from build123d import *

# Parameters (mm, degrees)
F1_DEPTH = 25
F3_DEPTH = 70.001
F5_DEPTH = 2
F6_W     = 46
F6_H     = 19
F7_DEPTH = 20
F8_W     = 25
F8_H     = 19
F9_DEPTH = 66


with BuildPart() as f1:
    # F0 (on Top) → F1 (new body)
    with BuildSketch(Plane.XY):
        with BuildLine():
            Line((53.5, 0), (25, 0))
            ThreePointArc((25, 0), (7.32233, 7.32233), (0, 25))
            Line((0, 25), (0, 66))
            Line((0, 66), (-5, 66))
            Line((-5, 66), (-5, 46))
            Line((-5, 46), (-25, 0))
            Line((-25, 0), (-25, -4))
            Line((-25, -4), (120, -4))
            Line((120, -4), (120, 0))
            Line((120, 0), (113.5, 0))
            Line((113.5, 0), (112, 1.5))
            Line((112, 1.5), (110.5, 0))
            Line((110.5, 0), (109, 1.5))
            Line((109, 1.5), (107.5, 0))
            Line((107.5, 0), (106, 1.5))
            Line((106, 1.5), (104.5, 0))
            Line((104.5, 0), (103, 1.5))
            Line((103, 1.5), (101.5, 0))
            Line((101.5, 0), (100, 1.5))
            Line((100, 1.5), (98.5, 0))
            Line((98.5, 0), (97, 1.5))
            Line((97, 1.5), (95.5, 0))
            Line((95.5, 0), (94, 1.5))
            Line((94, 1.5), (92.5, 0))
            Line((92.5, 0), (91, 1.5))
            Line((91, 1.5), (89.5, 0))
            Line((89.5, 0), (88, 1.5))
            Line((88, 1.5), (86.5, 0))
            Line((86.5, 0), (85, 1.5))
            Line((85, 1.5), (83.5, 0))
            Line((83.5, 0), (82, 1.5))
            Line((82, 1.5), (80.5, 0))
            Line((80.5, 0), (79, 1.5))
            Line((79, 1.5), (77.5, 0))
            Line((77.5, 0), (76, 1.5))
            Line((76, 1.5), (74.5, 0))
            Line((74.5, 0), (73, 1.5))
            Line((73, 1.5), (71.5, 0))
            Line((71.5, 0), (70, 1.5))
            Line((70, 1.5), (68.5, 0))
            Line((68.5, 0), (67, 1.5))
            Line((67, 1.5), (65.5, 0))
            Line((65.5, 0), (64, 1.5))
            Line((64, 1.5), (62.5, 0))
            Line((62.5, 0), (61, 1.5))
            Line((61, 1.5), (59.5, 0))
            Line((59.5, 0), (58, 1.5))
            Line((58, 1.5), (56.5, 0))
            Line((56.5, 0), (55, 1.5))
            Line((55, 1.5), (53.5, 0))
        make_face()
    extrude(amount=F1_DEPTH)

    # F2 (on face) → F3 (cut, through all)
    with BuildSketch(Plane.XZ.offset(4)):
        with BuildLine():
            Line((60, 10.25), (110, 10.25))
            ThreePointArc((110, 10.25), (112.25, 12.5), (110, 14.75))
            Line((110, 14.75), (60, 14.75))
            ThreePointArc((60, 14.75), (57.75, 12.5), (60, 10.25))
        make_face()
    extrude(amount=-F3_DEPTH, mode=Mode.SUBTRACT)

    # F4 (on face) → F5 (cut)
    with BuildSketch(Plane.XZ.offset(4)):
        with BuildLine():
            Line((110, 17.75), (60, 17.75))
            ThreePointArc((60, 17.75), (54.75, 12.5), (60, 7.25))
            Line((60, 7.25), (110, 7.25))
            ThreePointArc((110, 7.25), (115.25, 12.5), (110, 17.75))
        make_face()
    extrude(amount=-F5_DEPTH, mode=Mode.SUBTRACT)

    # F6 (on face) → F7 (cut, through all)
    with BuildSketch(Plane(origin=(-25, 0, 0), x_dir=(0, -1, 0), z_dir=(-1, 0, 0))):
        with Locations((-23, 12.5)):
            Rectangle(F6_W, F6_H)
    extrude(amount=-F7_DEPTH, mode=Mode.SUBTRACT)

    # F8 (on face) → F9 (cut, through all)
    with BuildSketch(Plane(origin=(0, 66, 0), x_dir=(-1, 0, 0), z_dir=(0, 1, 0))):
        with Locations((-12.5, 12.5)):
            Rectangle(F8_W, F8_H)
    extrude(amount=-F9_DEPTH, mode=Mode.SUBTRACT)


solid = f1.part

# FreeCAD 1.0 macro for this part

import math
import FreeCAD as App
import Part
import Sketcher
Q = App.Units.Quantity

doc = App.newDocument("Part")
body = doc.addObject("PartDesign::Body", "Body")

# Sketch on XY plane
sketch1 = body.newObject("Sketcher::SketchObject", "Sketch")
sketch1.AttachmentSupport = (doc.getObject("XY_Plane"), [""])
sketch1.MapMode = "FlatFace"
sketch1.addGeometry(Part.LineSegment(App.Vector(53.5, 0, 0), App.Vector(25, 0, 0)), False)
sketch1.addGeometry(Part.ArcOfCircle(Part.Circle(App.Vector(25, 25, 0), App.Vector(0, 0, 1), 25), math.radians(180), math.radians(270)), False)
sketch1.addGeometry(Part.LineSegment(App.Vector(0, 25, 0), App.Vector(0, 66, 0)), False)
sketch1.addGeometry(Part.LineSegment(App.Vector(0, 66, 0), App.Vector(-5, 66, 0)), False)
sketch1.addGeometry(Part.LineSegment(App.Vector(-5, 66, 0), App.Vector(-5, 46, 0)), False)
sketch1.addGeometry(Part.LineSegment(App.Vector(-5, 46, 0), App.Vector(-25, 0, 0)), False)
sketch1.addGeometry(Part.LineSegment(App.Vector(-25, 0, 0), App.Vector(-25, -4, 0)), False)
sketch1.addGeometry(Part.LineSegment(App.Vector(-25, -4, 0), App.Vector(120, -4, 0)), False)
sketch1.addGeometry(Part.LineSegment(App.Vector(120, -4, 0), App.Vector(120, 0, 0)), False)
sketch1.addGeometry(Part.LineSegment(App.Vector(120, 0, 0), App.Vector(113.5, 0, 0)), False)
sketch1.addGeometry(Part.LineSegment(App.Vector(113.5, 0, 0), App.Vector(112, 1.5, 0)), False)
sketch1.addGeometry(Part.LineSegment(App.Vector(112, 1.5, 0), App.Vector(110.5, 0, 0)), False)
sketch1.addGeometry(Part.LineSegment(App.Vector(110.5, 0, 0), App.Vector(109, 1.5, 0)), False)
sketch1.addGeometry(Part.LineSegment(App.Vector(109, 1.5, 0), App.Vector(107.5, 0, 0)), False)
sketch1.addGeometry(Part.LineSegment(App.Vector(107.5, 0, 0), App.Vector(106, 1.5, 0)), False)
sketch1.addGeometry(Part.LineSegment(App.Vector(106, 1.5, 0), App.Vector(104.5, 0, 0)), False)
sketch1.addGeometry(Part.LineSegment(App.Vector(104.5, 0, 0), App.Vector(103, 1.5, 0)), False)
sketch1.addGeometry(Part.LineSegment(App.Vector(103, 1.5, 0), App.Vector(101.5, 0, 0)), False)
sketch1.addGeometry(Part.LineSegment(App.Vector(101.5, 0, 0), App.Vector(100, 1.5, 0)), False)
sketch1.addGeometry(Part.LineSegment(App.Vector(100, 1.5, 0), App.Vector(98.5, 0, 0)), False)
sketch1.addGeometry(Part.LineSegment(App.Vector(98.5, 0, 0), App.Vector(97, 1.5, 0)), False)
sketch1.addGeometry(Part.LineSegment(App.Vector(97, 1.5, 0), App.Vector(95.5, 0, 0)), False)
sketch1.addGeometry(Part.LineSegment(App.Vector(95.5, 0, 0), App.Vector(94, 1.5, 0)), False)
sketch1.addGeometry(Part.LineSegment(App.Vector(94, 1.5, 0), App.Vector(92.5, 0, 0)), False)
sketch1.addGeometry(Part.LineSegment(App.Vector(92.5, 0, 0), App.Vector(91, 1.5, 0)), False)
sketch1.addGeometry(Part.LineSegment(App.Vector(91, 1.5, 0), App.Vector(89.5, 0, 0)), False)
sketch1.addGeometry(Part.LineSegment(App.Vector(89.5, 0, 0), App.Vector(88, 1.5, 0)), False)
sketch1.addGeometry(Part.LineSegment(App.Vector(88, 1.5, 0), App.Vector(86.5, 0, 0)), False)
sketch1.addGeometry(Part.LineSegment(App.Vector(86.5, 0, 0), App.Vector(85, 1.5, 0)), False)
sketch1.addGeometry(Part.LineSegment(App.Vector(85, 1.5, 0), App.Vector(83.5, 0, 0)), False)
sketch1.addGeometry(Part.LineSegment(App.Vector(83.5, 0, 0), App.Vector(82, 1.5, 0)), False)
sketch1.addGeometry(Part.LineSegment(App.Vector(82, 1.5, 0), App.Vector(80.5, 0, 0)), False)
sketch1.addGeometry(Part.LineSegment(App.Vector(80.5, 0, 0), App.Vector(79, 1.5, 0)), False)
sketch1.addGeometry(Part.LineSegment(App.Vector(79, 1.5, 0), App.Vector(77.5, 0, 0)), False)
sketch1.addGeometry(Part.LineSegment(App.Vector(77.5, 0, 0), App.Vector(76, 1.5, 0)), False)
sketch1.addGeometry(Part.LineSegment(App.Vector(76, 1.5, 0), App.Vector(74.5, 0, 0)), False)
sketch1.addGeometry(Part.LineSegment(App.Vector(74.5, 0, 0), App.Vector(73, 1.5, 0)), False)
sketch1.addGeometry(Part.LineSegment(App.Vector(73, 1.5, 0), App.Vector(71.5, 0, 0)), False)
sketch1.addGeometry(Part.LineSegment(App.Vector(71.5, 0, 0), App.Vector(70, 1.5, 0)), False)
sketch1.addGeometry(Part.LineSegment(App.Vector(70, 1.5, 0), App.Vector(68.5, 0, 0)), False)
sketch1.addGeometry(Part.LineSegment(App.Vector(68.5, 0, 0), App.Vector(67, 1.5, 0)), False)
sketch1.addGeometry(Part.LineSegment(App.Vector(67, 1.5, 0), App.Vector(65.5, 0, 0)), False)
sketch1.addGeometry(Part.LineSegment(App.Vector(65.5, 0, 0), App.Vector(64, 1.5, 0)), False)
sketch1.addGeometry(Part.LineSegment(App.Vector(64, 1.5, 0), App.Vector(62.5, 0, 0)), False)
sketch1.addGeometry(Part.LineSegment(App.Vector(62.5, 0, 0), App.Vector(61, 1.5, 0)), False)
sketch1.addGeometry(Part.LineSegment(App.Vector(61, 1.5, 0), App.Vector(59.5, 0, 0)), False)
sketch1.addGeometry(Part.LineSegment(App.Vector(59.5, 0, 0), App.Vector(58, 1.5, 0)), False)
sketch1.addGeometry(Part.LineSegment(App.Vector(58, 1.5, 0), App.Vector(56.5, 0, 0)), False)
sketch1.addGeometry(Part.LineSegment(App.Vector(56.5, 0, 0), App.Vector(55, 1.5, 0)), False)
sketch1.addGeometry(Part.LineSegment(App.Vector(55, 1.5, 0), App.Vector(53.5, 0, 0)), False)
sketch1.addConstraint(Sketcher.Constraint("Tangent", 0, 2, 1, 2))
sketch1.addConstraint(Sketcher.Constraint("Tangent", 1, 1, 2, 1))
sketch1.addConstraint(Sketcher.Constraint("Coincident", 2, 2, 3, 1))
sketch1.addConstraint(Sketcher.Constraint("Coincident", 3, 2, 4, 1))
sketch1.addConstraint(Sketcher.Constraint("Coincident", 4, 2, 5, 1))
sketch1.addConstraint(Sketcher.Constraint("Coincident", 5, 2, 6, 1))
sketch1.addConstraint(Sketcher.Constraint("Coincident", 6, 2, 7, 1))
sketch1.addConstraint(Sketcher.Constraint("Coincident", 7, 2, 8, 1))
sketch1.addConstraint(Sketcher.Constraint("Coincident", 8, 2, 9, 1))
sketch1.addConstraint(Sketcher.Constraint("Coincident", 9, 2, 10, 1))
sketch1.addConstraint(Sketcher.Constraint("Coincident", 10, 2, 11, 1))
sketch1.addConstraint(Sketcher.Constraint("Coincident", 11, 2, 12, 1))
sketch1.addConstraint(Sketcher.Constraint("Coincident", 12, 2, 13, 1))
sketch1.addConstraint(Sketcher.Constraint("Coincident", 13, 2, 14, 1))
sketch1.addConstraint(Sketcher.Constraint("Coincident", 14, 2, 15, 1))
sketch1.addConstraint(Sketcher.Constraint("Coincident", 15, 2, 16, 1))
sketch1.addConstraint(Sketcher.Constraint("Coincident", 16, 2, 17, 1))
sketch1.addConstraint(Sketcher.Constraint("Coincident", 17, 2, 18, 1))
sketch1.addConstraint(Sketcher.Constraint("Coincident", 18, 2, 19, 1))
sketch1.addConstraint(Sketcher.Constraint("Coincident", 19, 2, 20, 1))
sketch1.addConstraint(Sketcher.Constraint("Coincident", 20, 2, 21, 1))
sketch1.addConstraint(Sketcher.Constraint("Coincident", 21, 2, 22, 1))
sketch1.addConstraint(Sketcher.Constraint("Coincident", 22, 2, 23, 1))
sketch1.addConstraint(Sketcher.Constraint("Coincident", 23, 2, 24, 1))
sketch1.addConstraint(Sketcher.Constraint("Coincident", 24, 2, 25, 1))
sketch1.addConstraint(Sketcher.Constraint("Coincident", 25, 2, 26, 1))
sketch1.addConstraint(Sketcher.Constraint("Coincident", 26, 2, 27, 1))
sketch1.addConstraint(Sketcher.Constraint("Coincident", 27, 2, 28, 1))
sketch1.addConstraint(Sketcher.Constraint("Coincident", 28, 2, 29, 1))
sketch1.addConstraint(Sketcher.Constraint("Coincident", 29, 2, 30, 1))
sketch1.addConstraint(Sketcher.Constraint("Coincident", 30, 2, 31, 1))
sketch1.addConstraint(Sketcher.Constraint("Coincident", 31, 2, 32, 1))
sketch1.addConstraint(Sketcher.Constraint("Coincident", 32, 2, 33, 1))
sketch1.addConstraint(Sketcher.Constraint("Coincident", 33, 2, 34, 1))
sketch1.addConstraint(Sketcher.Constraint("Coincident", 34, 2, 35, 1))
sketch1.addConstraint(Sketcher.Constraint("Coincident", 35, 2, 36, 1))
sketch1.addConstraint(Sketcher.Constraint("Coincident", 36, 2, 37, 1))
sketch1.addConstraint(Sketcher.Constraint("Coincident", 37, 2, 38, 1))
sketch1.addConstraint(Sketcher.Constraint("Coincident", 38, 2, 39, 1))
sketch1.addConstraint(Sketcher.Constraint("Coincident", 39, 2, 40, 1))
sketch1.addConstraint(Sketcher.Constraint("Coincident", 40, 2, 41, 1))
sketch1.addConstraint(Sketcher.Constraint("Coincident", 41, 2, 42, 1))
sketch1.addConstraint(Sketcher.Constraint("Coincident", 42, 2, 43, 1))
sketch1.addConstraint(Sketcher.Constraint("Coincident", 43, 2, 44, 1))
sketch1.addConstraint(Sketcher.Constraint("Coincident", 44, 2, 45, 1))
sketch1.addConstraint(Sketcher.Constraint("Coincident", 45, 2, 46, 1))
sketch1.addConstraint(Sketcher.Constraint("Coincident", 46, 2, 47, 1))
sketch1.addConstraint(Sketcher.Constraint("Coincident", 47, 2, 48, 1))
sketch1.addConstraint(Sketcher.Constraint("Coincident", 48, 2, 49, 1))
sketch1.addConstraint(Sketcher.Constraint("Coincident", 49, 2, 0, 1))
sketch1.addConstraint(Sketcher.Constraint("Horizontal", 0))
sketch1.addConstraint(Sketcher.Constraint("Vertical", 2))
sketch1.addConstraint(Sketcher.Constraint("Horizontal", 3))
sketch1.addConstraint(Sketcher.Constraint("Vertical", 4))
sketch1.addConstraint(Sketcher.Constraint("Vertical", 6))
sketch1.addConstraint(Sketcher.Constraint("Horizontal", 7))
sketch1.addConstraint(Sketcher.Constraint("Vertical", 8))
sketch1.addConstraint(Sketcher.Constraint("Horizontal", 9))
sketch1.addConstraint(Sketcher.Constraint("Symmetric", 0, 2, 5, 2, -1, 1))
sketch1.addConstraint(Sketcher.Constraint("PointOnObject", 0, 2, -1))
sketch1.addConstraint(Sketcher.Constraint("PointOnObject", 1, 1, -2))
sketch1.addConstraint(Sketcher.Constraint("PointOnObject", 8, 2, -1))
sketch1.addConstraint(Sketcher.Constraint("PointOnObject", 11, 2, -1))
sketch1.addConstraint(Sketcher.Constraint("PointOnObject", 13, 2, -1))
sketch1.addConstraint(Sketcher.Constraint("PointOnObject", 15, 2, -1))
sketch1.addConstraint(Sketcher.Constraint("PointOnObject", 17, 2, -1))
sketch1.addConstraint(Sketcher.Constraint("PointOnObject", 19, 2, -1))
sketch1.addConstraint(Sketcher.Constraint("PointOnObject", 21, 2, -1))
sketch1.addConstraint(Sketcher.Constraint("PointOnObject", 23, 2, -1))
sketch1.addConstraint(Sketcher.Constraint("PointOnObject", 25, 2, -1))
sketch1.addConstraint(Sketcher.Constraint("PointOnObject", 27, 2, -1))
sketch1.addConstraint(Sketcher.Constraint("PointOnObject", 29, 2, -1))
sketch1.addConstraint(Sketcher.Constraint("PointOnObject", 31, 2, -1))
sketch1.addConstraint(Sketcher.Constraint("PointOnObject", 33, 2, -1))
sketch1.addConstraint(Sketcher.Constraint("PointOnObject", 35, 2, -1))
sketch1.addConstraint(Sketcher.Constraint("PointOnObject", 37, 2, -1))
sketch1.addConstraint(Sketcher.Constraint("PointOnObject", 39, 2, -1))
sketch1.addConstraint(Sketcher.Constraint("PointOnObject", 41, 2, -1))
sketch1.addConstraint(Sketcher.Constraint("PointOnObject", 43, 2, -1))
sketch1.addConstraint(Sketcher.Constraint("PointOnObject", 45, 2, -1))
sketch1.addConstraint(Sketcher.Constraint("PointOnObject", 47, 2, -1))
sketch1.addConstraint(Sketcher.Constraint("Perpendicular", 10, 11))
sketch1.addConstraint(Sketcher.Constraint("Perpendicular", 11, 12))
sketch1.addConstraint(Sketcher.Constraint("Perpendicular", 12, 13))
sketch1.addConstraint(Sketcher.Constraint("Perpendicular", 13, 14))
sketch1.addConstraint(Sketcher.Constraint("Perpendicular", 14, 15))
sketch1.addConstraint(Sketcher.Constraint("Perpendicular", 15, 16))
sketch1.addConstraint(Sketcher.Constraint("Perpendicular", 16, 17))
sketch1.addConstraint(Sketcher.Constraint("Perpendicular", 17, 18))
sketch1.addConstraint(Sketcher.Constraint("Perpendicular", 18, 19))
sketch1.addConstraint(Sketcher.Constraint("Perpendicular", 19, 20))
sketch1.addConstraint(Sketcher.Constraint("Perpendicular", 20, 21))
sketch1.addConstraint(Sketcher.Constraint("Perpendicular", 21, 22))
sketch1.addConstraint(Sketcher.Constraint("Perpendicular", 22, 23))
sketch1.addConstraint(Sketcher.Constraint("Perpendicular", 23, 24))
sketch1.addConstraint(Sketcher.Constraint("Perpendicular", 24, 25))
sketch1.addConstraint(Sketcher.Constraint("Perpendicular", 25, 26))
sketch1.addConstraint(Sketcher.Constraint("Perpendicular", 26, 27))
sketch1.addConstraint(Sketcher.Constraint("Perpendicular", 27, 28))
sketch1.addConstraint(Sketcher.Constraint("Perpendicular", 28, 29))
sketch1.addConstraint(Sketcher.Constraint("Perpendicular", 29, 30))
sketch1.addConstraint(Sketcher.Constraint("Perpendicular", 30, 31))
sketch1.addConstraint(Sketcher.Constraint("Perpendicular", 31, 32))
sketch1.addConstraint(Sketcher.Constraint("Perpendicular", 32, 33))
sketch1.addConstraint(Sketcher.Constraint("Perpendicular", 33, 34))
sketch1.addConstraint(Sketcher.Constraint("Perpendicular", 34, 35))
sketch1.addConstraint(Sketcher.Constraint("Perpendicular", 35, 36))
sketch1.addConstraint(Sketcher.Constraint("Perpendicular", 36, 37))
sketch1.addConstraint(Sketcher.Constraint("Perpendicular", 37, 38))
sketch1.addConstraint(Sketcher.Constraint("Perpendicular", 38, 39))
sketch1.addConstraint(Sketcher.Constraint("Perpendicular", 39, 40))
sketch1.addConstraint(Sketcher.Constraint("Perpendicular", 40, 41))
sketch1.addConstraint(Sketcher.Constraint("Perpendicular", 41, 42))
sketch1.addConstraint(Sketcher.Constraint("Perpendicular", 42, 43))
sketch1.addConstraint(Sketcher.Constraint("Perpendicular", 43, 44))
sketch1.addConstraint(Sketcher.Constraint("Perpendicular", 44, 45))
sketch1.addConstraint(Sketcher.Constraint("Perpendicular", 45, 46))
sketch1.addConstraint(Sketcher.Constraint("Perpendicular", 46, 47))
sketch1.addConstraint(Sketcher.Constraint("Perpendicular", 47, 48))
sketch1.addConstraint(Sketcher.Constraint("Perpendicular", 48, 49))
sketch1.addConstraint(Sketcher.Constraint("Horizontal", 10, 2, 12, 2))
sketch1.addConstraint(Sketcher.Constraint("Horizontal", 12, 2, 14, 2))
sketch1.addConstraint(Sketcher.Constraint("Horizontal", 14, 2, 16, 2))
sketch1.addConstraint(Sketcher.Constraint("Horizontal", 16, 2, 18, 2))
sketch1.addConstraint(Sketcher.Constraint("Horizontal", 18, 2, 20, 2))
sketch1.addConstraint(Sketcher.Constraint("Horizontal", 20, 2, 22, 2))
sketch1.addConstraint(Sketcher.Constraint("Horizontal", 22, 2, 24, 2))
sketch1.addConstraint(Sketcher.Constraint("Horizontal", 24, 2, 26, 2))
sketch1.addConstraint(Sketcher.Constraint("Horizontal", 26, 2, 28, 2))
sketch1.addConstraint(Sketcher.Constraint("Horizontal", 28, 2, 30, 2))
sketch1.addConstraint(Sketcher.Constraint("Horizontal", 30, 2, 32, 2))
sketch1.addConstraint(Sketcher.Constraint("Horizontal", 32, 2, 34, 2))
sketch1.addConstraint(Sketcher.Constraint("Horizontal", 34, 2, 36, 2))
sketch1.addConstraint(Sketcher.Constraint("Horizontal", 36, 2, 38, 2))
sketch1.addConstraint(Sketcher.Constraint("Horizontal", 38, 2, 40, 2))
sketch1.addConstraint(Sketcher.Constraint("Horizontal", 40, 2, 42, 2))
sketch1.addConstraint(Sketcher.Constraint("Horizontal", 42, 2, 44, 2))
sketch1.addConstraint(Sketcher.Constraint("Horizontal", 44, 2, 46, 2))
sketch1.addConstraint(Sketcher.Constraint("Horizontal", 46, 2, 48, 2))
sketch1.addConstraint(Sketcher.Constraint("Equal", 10, 11))
sketch1.addConstraint(Sketcher.Constraint("Radius", 1, Q("24.999998 mm")))
sketch1.addConstraint(Sketcher.Constraint("DistanceX", 3, 2, 3, 1, Q("5 mm")))
sketch1.addConstraint(Sketcher.Constraint("DistanceX", 7, 1, 7, 2, Q("145 mm")))
sketch1.addConstraint(Sketcher.Constraint("DistanceY", 2, 1, 2, 2, Q("41 mm")))
sketch1.addConstraint(Sketcher.Constraint("DistanceY", 4, 2, 4, 1, Q("20 mm")))
sketch1.addConstraint(Sketcher.Constraint("DistanceY", 6, 2, 6, 1, Q("4 mm")))
sketch1.addConstraint(Sketcher.Constraint("DistanceX", 0, 2, 0, 1, Q("28.5 mm")))
sketch1.addConstraint(Sketcher.Constraint("DistanceX", 9, 2, 9, 1, Q("6.5 mm")))
pad1 = body.newObject("PartDesign::Pad", "Pad")
pad1.Profile = sketch1
pad1.Length = 25

# Sketch on XZ plane
sketch2 = body.newObject("Sketcher::SketchObject", "Sketch001")
sketch2.AttachmentSupport = (doc.getObject("XZ_Plane"), [""])
sketch2.MapMode = "FlatFace"
sketch2.AttachmentOffset = App.Placement(App.Vector(0, 0, 4), App.Rotation())
sketch2.addGeometry(Part.LineSegment(App.Vector(60, 10.2, 0), App.Vector(110, 10.2, 0)), False)
sketch2.addGeometry(Part.ArcOfCircle(Part.Circle(App.Vector(110, 12.5, 0), App.Vector(0, 0, 1), 2.2), math.radians(-90), math.radians(90)), False)
sketch2.addGeometry(Part.LineSegment(App.Vector(110, 14.8, 0), App.Vector(60, 14.8, 0)), False)
sketch2.addGeometry(Part.ArcOfCircle(Part.Circle(App.Vector(60, 12.5, 0), App.Vector(0, 0, 1), 2.2), math.radians(90), math.radians(270)), False)
sketch2.addConstraint(Sketcher.Constraint("Tangent", 0, 2, 1, 1))
sketch2.addConstraint(Sketcher.Constraint("Tangent", 1, 2, 2, 1))
sketch2.addConstraint(Sketcher.Constraint("Tangent", 2, 2, 3, 1))
sketch2.addConstraint(Sketcher.Constraint("Tangent", 3, 2, 0, 1))
sketch2.addConstraint(Sketcher.Constraint("Horizontal", 0))
sketch2.addConstraint(Sketcher.Constraint("Horizontal", 2))
sketch2.addConstraint(Sketcher.Constraint("DistanceX", 0, 1, 0, 2, Q("50 mm")))
sketch2.addConstraint(Sketcher.Constraint("Radius", 1, Q("2.25 mm")))
sketch2.addConstraint(Sketcher.Constraint("DistanceX", -1, 1, 1, 3, Q("110 mm")))
sketch2.addConstraint(Sketcher.Constraint("DistanceY", -1, 1, 1, 3, Q("12.5 mm")))
pocket1 = body.newObject("PartDesign::Pocket", "Pocket")
pocket1.Profile = sketch2
pocket1.Type = "ThroughAll"

# Sketch on XZ plane
sketch3 = body.newObject("Sketcher::SketchObject", "Sketch002")
sketch3.AttachmentSupport = (doc.getObject("XZ_Plane"), [""])
sketch3.MapMode = "FlatFace"
sketch3.AttachmentOffset = App.Placement(App.Vector(0, 0, 4), App.Rotation())
sketch3.addGeometry(Part.LineSegment(App.Vector(110, 18, 0), App.Vector(60, 18, 0)), False)
sketch3.addGeometry(Part.ArcOfCircle(Part.Circle(App.Vector(60, 12, 0), App.Vector(0, 0, 1), 5), math.radians(90), math.radians(270)), False)
sketch3.addGeometry(Part.LineSegment(App.Vector(60, 7, 0), App.Vector(110, 7, 0)), False)
sketch3.addGeometry(Part.ArcOfCircle(Part.Circle(App.Vector(110, 12, 0), App.Vector(0, 0, 1), 5), math.radians(-90), math.radians(90)), False)
sketch3.addConstraint(Sketcher.Constraint("Tangent", 0, 2, 1, 1))
sketch3.addConstraint(Sketcher.Constraint("Tangent", 1, 2, 2, 1))
sketch3.addConstraint(Sketcher.Constraint("Tangent", 2, 2, 3, 1))
sketch3.addConstraint(Sketcher.Constraint("Tangent", 3, 2, 0, 1))
sketch3.addConstraint(Sketcher.Constraint("Horizontal", 0))
sketch3.addConstraint(Sketcher.Constraint("Horizontal", 2))
sketch3.addConstraint(Sketcher.Constraint("DistanceX", 0, 2, 0, 1, Q("50 mm")))
sketch3.addConstraint(Sketcher.Constraint("Radius", 1, Q("5.25 mm")))
sketch3.addConstraint(Sketcher.Constraint("DistanceX", -1, 1, 1, 3, Q("60 mm")))
sketch3.addConstraint(Sketcher.Constraint("DistanceY", -1, 1, 1, 3, Q("12.5 mm")))
pocket2 = body.newObject("PartDesign::Pocket", "Pocket001")
pocket2.Profile = sketch3
pocket2.Length = 2

# Sketch on YZ plane
sketch4 = body.newObject("Sketcher::SketchObject", "Sketch003")
sketch4.AttachmentSupport = (doc.getObject("YZ_Plane"), [""])
sketch4.MapMode = "FlatFace"
sketch4.AttachmentOffset = App.Placement(App.Vector(0, 0, -25), App.Rotation())
sketch4.addGeometry(Part.LineSegment(App.Vector(46, 22, 0), App.Vector(46, 3, 0)), False)
sketch4.addGeometry(Part.LineSegment(App.Vector(46, 3, 0), App.Vector(0, 3, 0)), False)
sketch4.addGeometry(Part.LineSegment(App.Vector(0, 3, 0), App.Vector(0, 22, 0)), False)
sketch4.addGeometry(Part.LineSegment(App.Vector(0, 22, 0), App.Vector(46, 22, 0)), False)
sketch4.addConstraint(Sketcher.Constraint("Coincident", 0, 2, 1, 1))
sketch4.addConstraint(Sketcher.Constraint("Coincident", 1, 2, 2, 1))
sketch4.addConstraint(Sketcher.Constraint("Coincident", 2, 2, 3, 1))
sketch4.addConstraint(Sketcher.Constraint("Coincident", 3, 2, 0, 1))
sketch4.addConstraint(Sketcher.Constraint("Vertical", 0))
sketch4.addConstraint(Sketcher.Constraint("Horizontal", 1))
sketch4.addConstraint(Sketcher.Constraint("Vertical", 2))
sketch4.addConstraint(Sketcher.Constraint("Horizontal", 3))
sketch4.addConstraint(Sketcher.Constraint("PointOnObject", 1, 2, -2))
sketch4.addConstraint(Sketcher.Constraint("DistanceX", 1, 2, 1, 1, Q("46 mm")))
sketch4.addConstraint(Sketcher.Constraint("DistanceY", 0, 2, 0, 1, Q("19 mm")))
sketch4.addConstraint(Sketcher.Constraint("DistanceY", -1, 1, 0, 2, Q("3 mm")))
pocket3 = body.newObject("PartDesign::Pocket", "Pocket002")
pocket3.Profile = sketch4
pocket3.Length = 20
pocket3.Reversed = True

# Sketch on XZ plane
sketch5 = body.newObject("Sketcher::SketchObject", "Sketch004")
sketch5.AttachmentSupport = (doc.getObject("XZ_Plane"), [""])
sketch5.MapMode = "FlatFace"
sketch5.AttachmentOffset = App.Placement(App.Vector(0, 0, -66), App.Rotation())
sketch5.addGeometry(Part.LineSegment(App.Vector(25, 22, 0), App.Vector(25, 3, 0)), False)
sketch5.addGeometry(Part.LineSegment(App.Vector(25, 3, 0), App.Vector(0, 3, 0)), False)
sketch5.addGeometry(Part.LineSegment(App.Vector(0, 3, 0), App.Vector(0, 22, 0)), False)
sketch5.addGeometry(Part.LineSegment(App.Vector(0, 22, 0), App.Vector(25, 22, 0)), False)
sketch5.addConstraint(Sketcher.Constraint("Coincident", 0, 2, 1, 1))
sketch5.addConstraint(Sketcher.Constraint("Coincident", 1, 2, 2, 1))
sketch5.addConstraint(Sketcher.Constraint("Coincident", 2, 2, 3, 1))
sketch5.addConstraint(Sketcher.Constraint("Coincident", 3, 2, 0, 1))
sketch5.addConstraint(Sketcher.Constraint("Vertical", 0))
sketch5.addConstraint(Sketcher.Constraint("Horizontal", 1))
sketch5.addConstraint(Sketcher.Constraint("Vertical", 2))
sketch5.addConstraint(Sketcher.Constraint("Horizontal", 3))
sketch5.addConstraint(Sketcher.Constraint("PointOnObject", 1, 2, -2))
sketch5.addConstraint(Sketcher.Constraint("DistanceX", 1, 2, 1, 1, Q("25 mm")))
sketch5.addConstraint(Sketcher.Constraint("DistanceY", 0, 2, 0, 1, Q("19 mm")))
sketch5.addConstraint(Sketcher.Constraint("DistanceY", -1, 1, 0, 2, Q("3 mm")))
pocket4 = body.newObject("PartDesign::Pocket", "Pocket003")
pocket4.Profile = sketch5
pocket4.Length = 66
pocket4.Reversed = True

doc.recompute()
